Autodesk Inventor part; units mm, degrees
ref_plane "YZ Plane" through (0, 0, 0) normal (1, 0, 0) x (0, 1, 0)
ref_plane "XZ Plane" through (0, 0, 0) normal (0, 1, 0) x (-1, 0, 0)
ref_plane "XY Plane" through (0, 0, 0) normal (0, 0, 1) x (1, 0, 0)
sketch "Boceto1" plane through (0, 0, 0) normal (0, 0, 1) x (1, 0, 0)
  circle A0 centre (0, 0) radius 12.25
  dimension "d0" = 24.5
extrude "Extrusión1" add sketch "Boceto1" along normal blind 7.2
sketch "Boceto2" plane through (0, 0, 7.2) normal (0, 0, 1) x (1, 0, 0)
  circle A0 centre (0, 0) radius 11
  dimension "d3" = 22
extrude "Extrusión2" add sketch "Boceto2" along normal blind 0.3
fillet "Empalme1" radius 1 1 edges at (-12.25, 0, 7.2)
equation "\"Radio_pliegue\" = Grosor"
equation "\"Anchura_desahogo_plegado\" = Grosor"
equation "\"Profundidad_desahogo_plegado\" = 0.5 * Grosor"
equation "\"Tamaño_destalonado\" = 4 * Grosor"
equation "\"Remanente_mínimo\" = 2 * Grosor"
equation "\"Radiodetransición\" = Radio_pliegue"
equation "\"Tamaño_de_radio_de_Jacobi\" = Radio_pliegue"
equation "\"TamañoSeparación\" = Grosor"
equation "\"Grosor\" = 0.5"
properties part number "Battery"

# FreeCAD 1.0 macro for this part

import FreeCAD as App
import Part
import Sketcher

V = App.Vector


def edges_at(feature, points):
    """Names of the edges that pass closest to the given points."""
    edges = feature.Shape.Edges
    near = lambda p: min(range(len(edges)), key=lambda i: edges[i].distToShape(Part.Vertex(*p))[0])
    return sorted({f"Edge{near(p) + 1}" for p in points})

doc = App.newDocument("Part")
body = doc.addObject("PartDesign::Body", "Body")

# Sketch on XY plane
sketch1 = body.newObject("Sketcher::SketchObject", "Sketch")
sketch1.AttachmentSupport = (doc.getObject("XY_Plane"), [""])
sketch1.MapMode = "FlatFace"
sketch1.addGeometry(Part.Circle(V(0, 0, 0), V(0, 0, 1), 12.25), False)
sketch1.addConstraint([
    Sketcher.Constraint("Coincident", 0, 3, -1, 1),
    Sketcher.Constraint("Diameter", 0, 24.5),
])
pad1 = body.newObject("PartDesign::Pad", "Pad")
pad1.Profile = sketch1
pad1.Length = 7.2

# Sketch on XY plane
sketch2 = body.newObject("Sketcher::SketchObject", "Sketch001")
sketch2.AttachmentSupport = (doc.getObject("XY_Plane"), [""])
sketch2.MapMode = "FlatFace"
sketch2.AttachmentOffset = App.Placement(V(0, 0, 7.2), App.Rotation())
sketch2.addGeometry(Part.Circle(V(0, 0, 0), V(0, 0, 1), 11), False)
sketch2.addConstraint([
    Sketcher.Constraint("Coincident", 0, 3, -1, 1),
    Sketcher.Constraint("Diameter", 0, 22.0),
])
pad2 = body.newObject("PartDesign::Pad", "Pad001")
pad2.Profile = sketch2
pad2.Length = 0.3
doc.recompute()

fillet = body.newObject("PartDesign::Fillet", "Fillet")
fillet.Base = (pad2, edges_at(pad2, [(-12.25, 0, 7.2)]))
fillet.Radius = 1

doc.recompute()
